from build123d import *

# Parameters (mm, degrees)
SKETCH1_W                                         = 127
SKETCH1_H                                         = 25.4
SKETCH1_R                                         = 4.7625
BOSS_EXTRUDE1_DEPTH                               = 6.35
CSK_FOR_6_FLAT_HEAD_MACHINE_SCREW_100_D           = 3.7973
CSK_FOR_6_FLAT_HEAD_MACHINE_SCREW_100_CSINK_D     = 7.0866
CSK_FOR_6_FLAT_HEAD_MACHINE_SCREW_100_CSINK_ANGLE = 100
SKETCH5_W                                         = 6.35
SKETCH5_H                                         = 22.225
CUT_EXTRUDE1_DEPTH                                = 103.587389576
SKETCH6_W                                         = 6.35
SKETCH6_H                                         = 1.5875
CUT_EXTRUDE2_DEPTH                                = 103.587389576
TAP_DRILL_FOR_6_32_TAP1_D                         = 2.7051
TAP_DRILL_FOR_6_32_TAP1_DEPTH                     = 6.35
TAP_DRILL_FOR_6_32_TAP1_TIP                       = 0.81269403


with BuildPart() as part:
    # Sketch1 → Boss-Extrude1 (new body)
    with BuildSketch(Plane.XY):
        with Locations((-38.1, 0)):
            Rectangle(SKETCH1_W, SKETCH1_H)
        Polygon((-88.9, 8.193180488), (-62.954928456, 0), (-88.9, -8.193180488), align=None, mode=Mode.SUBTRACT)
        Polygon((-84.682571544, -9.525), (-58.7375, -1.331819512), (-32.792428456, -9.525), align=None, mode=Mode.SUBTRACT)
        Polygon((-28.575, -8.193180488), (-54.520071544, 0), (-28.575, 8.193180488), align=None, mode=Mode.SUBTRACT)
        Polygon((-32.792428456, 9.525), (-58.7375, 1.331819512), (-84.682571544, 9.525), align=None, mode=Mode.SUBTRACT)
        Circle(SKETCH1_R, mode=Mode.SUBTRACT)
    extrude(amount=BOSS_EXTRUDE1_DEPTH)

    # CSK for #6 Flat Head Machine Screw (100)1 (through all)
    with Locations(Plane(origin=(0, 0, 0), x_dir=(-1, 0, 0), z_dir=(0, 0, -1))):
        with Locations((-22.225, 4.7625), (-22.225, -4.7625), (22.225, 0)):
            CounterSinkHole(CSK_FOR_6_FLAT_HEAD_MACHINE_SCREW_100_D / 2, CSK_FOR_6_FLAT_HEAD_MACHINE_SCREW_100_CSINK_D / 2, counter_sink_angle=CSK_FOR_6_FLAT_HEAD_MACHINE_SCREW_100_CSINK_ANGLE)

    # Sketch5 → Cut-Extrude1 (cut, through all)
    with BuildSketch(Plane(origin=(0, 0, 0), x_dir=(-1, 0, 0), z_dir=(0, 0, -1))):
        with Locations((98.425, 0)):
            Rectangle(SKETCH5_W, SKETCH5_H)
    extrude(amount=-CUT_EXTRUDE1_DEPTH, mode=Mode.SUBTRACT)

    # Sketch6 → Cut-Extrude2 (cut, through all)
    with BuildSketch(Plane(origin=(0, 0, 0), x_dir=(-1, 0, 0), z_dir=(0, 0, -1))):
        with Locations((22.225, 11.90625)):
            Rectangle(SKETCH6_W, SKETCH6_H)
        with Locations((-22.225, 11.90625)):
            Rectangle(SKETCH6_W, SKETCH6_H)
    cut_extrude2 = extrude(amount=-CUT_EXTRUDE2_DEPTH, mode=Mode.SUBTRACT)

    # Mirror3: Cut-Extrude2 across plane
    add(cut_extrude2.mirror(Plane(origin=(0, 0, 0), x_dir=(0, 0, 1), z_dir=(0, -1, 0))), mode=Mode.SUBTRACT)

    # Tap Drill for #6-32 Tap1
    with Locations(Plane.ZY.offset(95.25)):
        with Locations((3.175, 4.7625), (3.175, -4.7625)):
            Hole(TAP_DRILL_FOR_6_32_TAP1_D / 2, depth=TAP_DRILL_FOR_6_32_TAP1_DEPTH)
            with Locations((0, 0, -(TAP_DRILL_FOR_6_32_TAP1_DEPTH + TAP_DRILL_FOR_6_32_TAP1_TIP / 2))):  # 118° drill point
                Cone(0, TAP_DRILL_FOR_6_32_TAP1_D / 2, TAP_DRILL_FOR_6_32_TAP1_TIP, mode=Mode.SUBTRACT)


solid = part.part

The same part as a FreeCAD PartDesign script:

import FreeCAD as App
import Part
import Sketcher
from FreeCAD import Vector
Q = App.Units.Quantity


def add_polygon(sketch, points):
    """Adds a closed chain of lines whose ends are joined by coincident constraints."""
    first, n = sketch.GeometryCount, len(points)
    for a, b in zip(points, points[1:] + points[:1]):
        sketch.addGeometry(Part.LineSegment(App.Vector(*a, 0), App.Vector(*b, 0)), False)
    for i in range(n):
        sketch.addConstraint(Sketcher.Constraint("Coincident", first + i, 2, first + (i + 1) % n, 1))

doc = App.newDocument("Part")
body = doc.addObject("PartDesign::Body", "Body")

# Sketch on XY plane
sketch1 = doc.addObject("Sketcher::SketchObject", "Sketch")
body.addObject(sketch1)
sketch1.AttachmentSupport = (doc.XY_Plane, [""])
sketch1.MapMode = "FlatFace"
add_polygon(sketch1, [(-101.6, 12.7), (-101.6, -12.7), (25.4, -12.7), (25.4, 12.7)])  # lines 0-3
add_polygon(sketch1, [(-32.8, -9.5), (-84.7, -9.5), (-58.7, -1.3)])  # lines 4-6
add_polygon(sketch1, [(-88.9, -8.2), (-88.9, 8.2), (-63, 0)])  # lines 7-9
add_polygon(sketch1, [(-84.7, 9.5), (-32.8, 9.5), (-58.7, 1.3)])  # lines 10-12
add_polygon(sketch1, [(-28.6, 8.2), (-28.6, -8.2), (-54.5, 0)])  # lines 13-15
sketch1.addGeometry(Part.Circle(Vector(0, 0, 0), Vector(0, 0, 1), 4.8), False)  # 16
sketch1.addConstraint([
    Sketcher.Constraint("Vertical", 0),
    Sketcher.Constraint("Horizontal", 1),
    Sketcher.Constraint("Vertical", 2),
    Sketcher.Constraint("Horizontal", 3),
    Sketcher.Constraint("Horizontal", 4),
    Sketcher.Constraint("Vertical", 7),
    Sketcher.Constraint("Horizontal", 10),
    Sketcher.Constraint("Vertical", 13),
    Sketcher.Constraint("Coincident", 16, 3, -1, 1),
    Sketcher.Constraint("Symmetric", 6, 2, 10, 2, -1),
    Sketcher.Constraint("Symmetric", 5, 2, 11, 2, -1),
    Sketcher.Constraint("PointOnObject", 8, 2, -1),
    Sketcher.Constraint("PointOnObject", 14, 2, -1),
    Sketcher.Constraint("Parallel", 6, 8),
    Sketcher.Constraint("Parallel", 5, 9),
    Sketcher.Constraint("Parallel", 9, 11),
    Sketcher.Constraint("Parallel", 8, 12),
    Sketcher.Constraint("Parallel", 12, 14),
    Sketcher.Constraint("Parallel", 11, 15),
    Sketcher.Constraint("Horizontal", 9, 2, 13, 2),
    Sketcher.Constraint("Equal", 6, 8),
    Sketcher.Constraint("DistanceX", 1, 1, 1, 2, Q("5 in")),
    Sketcher.Constraint("DistanceY", 0, 2, 0, 1, Q("1 in")),
    Sketcher.Constraint("Diameter", 16, Q("0.375 in")),
    Sketcher.Constraint("DistanceX", 0, 2, -1, 1, Q("4 in")),
    Sketcher.Constraint("DistanceY", 0, 2, -1, 1, Q("0.5 in")),
    Sketcher.Constraint("DistanceX", 7, 2, -1, 1, Q("3.5 in")),
    Sketcher.Constraint("DistanceY", 6, 2, 10, 2, Q("0.75 in")),
    Sketcher.Constraint("DistanceX", 5, 2, -1, 1, Q("2.3125 in")),
    Sketcher.Constraint("DistanceX", 13, 2, -1, 1, Q("1.125 in")),
    Sketcher.Constraint("DistanceY", 7, 1, 7, 2, 16.386361),
    Sketcher.Constraint("DistanceX", 4, 2, 4, 1, 51.890143),
])
pad1 = doc.addObject("PartDesign::Pad", "Pad")
body.addObject(pad1)
pad1.Profile = sketch1
pad1.Length = Q("0.25 in")

# Sketch on XY plane
sketch2 = doc.addObject("Sketcher::SketchObject", "Sketch001")
body.addObject(sketch2)
sketch2.AttachmentSupport = (doc.XY_Plane, [""])
sketch2.MapMode = "FlatFace"
sketch2.addGeometry([
    Part.Circle(Vector(22.2, 4.8, 0), Vector(0, 0, 1), 1.9),
    Part.Circle(Vector(22.2, -4.8, 0), Vector(0, 0, 1), 1.9),
    Part.Circle(Vector(-22.2, 0, 0), Vector(0, 0, 1), 1.9),
], False)
sketch2.addConstraint([
    Sketcher.Constraint("Equal", 0, 1),
    Sketcher.Constraint("Equal", 1, 2),
    Sketcher.Constraint("Symmetric", 0, 3, 1, 3, -1),
    Sketcher.Constraint("PointOnObject", 2, 3, -1),
    Sketcher.Constraint("Diameter", 0, Q("0.1495 in")),
    Sketcher.Constraint("DistanceX", 2, 3, 0, 3, Q("1.75 in")),
    Sketcher.Constraint("DistanceX", -1, 1, 0, 3, Q("0.875 in")),
    Sketcher.Constraint("DistanceY", -1, 1, 0, 3, Q("0.1875 in")),
])
doc.recompute()
hole = doc.addObject("PartDesign::Hole", "Hole")
body.addObject(hole)
hole.Profile = sketch2
hole.ThreadType = "None"
hole.Diameter = Q("0.1495 in")
hole.DepthType = "ThroughAll"
hole.HoleCutType = "Countersink"
hole.HoleCutDiameter = Q("0.279 in")
hole.HoleCutCountersinkAngle = 100
hole.Reversed = True

# Sketch on XY plane
sketch3 = doc.addObject("Sketcher::SketchObject", "Sketch002")
body.addObject(sketch3)
sketch3.AttachmentSupport = (doc.XY_Plane, [""])
sketch3.MapMode = "FlatFace"
add_polygon(sketch3, [(-95, 11), (-95, -11), (-102, -11), (-102, 11)])  # lines 0-3
sketch3.addConstraint([
    Sketcher.Constraint("Vertical", 0),
    Sketcher.Constraint("Horizontal", 1),
    Sketcher.Constraint("Vertical", 2),
    Sketcher.Constraint("Horizontal", 3),
    Sketcher.Constraint("DistanceX", 1, 2, -1, 1, Q("4 in")),
    Sketcher.Constraint("DistanceX", 1, 2, 1, 1, Q("0.25 in")),
    Sketcher.Constraint("DistanceY", 0, 2, 0, 1, Q("0.875 in")),
    Sketcher.Constraint("DistanceY", 0, 2, -1, 1, Q("0.4375 in")),
])
pocket1 = doc.addObject("PartDesign::Pocket", "Pocket")
body.addObject(pocket1)
pocket1.Profile = sketch3
pocket1.Type = "ThroughAll"
pocket1.Reversed = True

# Sketch on XY plane
sketch4 = doc.addObject("Sketcher::SketchObject", "Sketch003")
body.addObject(sketch4)
sketch4.AttachmentSupport = (doc.XY_Plane, [""])
sketch4.MapMode = "FlatFace"
add_polygon(sketch4, [(-19.1, 12.7), (-19.1, 11.1), (-25.4, 11.1), (-25.4, 12.7)])  # lines 0-3
add_polygon(sketch4, [(25.4, 12.7), (25.4, 11.1), (19.1, 11.1), (19.1, 12.7)])  # lines 4-7
sketch4.addConstraint([
    Sketcher.Constraint("Vertical", 0),
    Sketcher.Constraint("Horizontal", 1),
    Sketcher.Constraint("Vertical", 2),
    Sketcher.Constraint("Horizontal", 3),
    Sketcher.Constraint("Vertical", 4),
    Sketcher.Constraint("Horizontal", 5),
    Sketcher.Constraint("Vertical", 6),
    Sketcher.Constraint("Horizontal", 7),
    Sketcher.Constraint("Symmetric", 1, 2, 4, 2, -2),
    Sketcher.Constraint("Symmetric", 3, 2, 6, 2, -2),
    Sketcher.Constraint("DistanceX", 1, 2, -1, 1, Q("1 in")),
    Sketcher.Constraint("DistanceX", 1, 2, 1, 1, Q("0.25 in")),
    Sketcher.Constraint("DistanceY", -1, 1, 2, 2, Q("0.5 in")),
    Sketcher.Constraint("DistanceY", 0, 2, 0, 1, Q("0.0625 in")),
])
pocket2 = doc.addObject("PartDesign::Pocket", "Pocket001")
body.addObject(pocket2)
pocket2.Profile = sketch4
pocket2.Type = "ThroughAll"
pocket2.Reversed = True
doc.recompute()

mirrored = doc.addObject("PartDesign::Mirrored", "Mirrored")
body.addObject(mirrored)
mirrored.Originals = [pocket2]
mirrored.MirrorPlane = (doc.XZ_Plane, [""])
body.Tip = mirrored

# Sketch on YZ plane
sketch5 = doc.addObject("Sketcher::SketchObject", "Sketch004")
body.addObject(sketch5)
sketch5.AttachmentSupport = (doc.YZ_Plane, [""])
sketch5.MapMode = "FlatFace"
sketch5.AttachmentOffset = App.Placement(Vector(0, 0, -3.75 * 25.4), App.Rotation())
sketch5.addGeometry([
    Part.Circle(Vector(4.8, 3.2, 0), Vector(0, 0, 1), 1.4),
    Part.Circle(Vector(-4.8, 3.2, 0), Vector(0, 0, 1), 1.4),
], False)
sketch5.addConstraint([
    Sketcher.Constraint("Equal", 0, 1),
    Sketcher.Constraint("Symmetric", 0, 3, 1, 3, -2),
    Sketcher.Constraint("Diameter", 0, Q("0.1065 in")),
    Sketcher.Constraint("DistanceX", -1, 1, 0, 3, Q("0.1875 in")),
    Sketcher.Constraint("DistanceY", -1, 1, 0, 3, Q("0.125 in")),
])
doc.recompute()
hole2 = doc.addObject("PartDesign::Hole", "Hole001")
body.addObject(hole2)
hole2.Profile = sketch5
hole2.ThreadType = "None"
hole2.Diameter = Q("0.1065 in")
hole2.DepthType = "Dimension"
hole2.Depth = Q("0.25 in")
hole2.DrillPoint = "Angled"
hole2.DrillPointAngle = 118
hole2.Reversed = True

doc.recompute()
